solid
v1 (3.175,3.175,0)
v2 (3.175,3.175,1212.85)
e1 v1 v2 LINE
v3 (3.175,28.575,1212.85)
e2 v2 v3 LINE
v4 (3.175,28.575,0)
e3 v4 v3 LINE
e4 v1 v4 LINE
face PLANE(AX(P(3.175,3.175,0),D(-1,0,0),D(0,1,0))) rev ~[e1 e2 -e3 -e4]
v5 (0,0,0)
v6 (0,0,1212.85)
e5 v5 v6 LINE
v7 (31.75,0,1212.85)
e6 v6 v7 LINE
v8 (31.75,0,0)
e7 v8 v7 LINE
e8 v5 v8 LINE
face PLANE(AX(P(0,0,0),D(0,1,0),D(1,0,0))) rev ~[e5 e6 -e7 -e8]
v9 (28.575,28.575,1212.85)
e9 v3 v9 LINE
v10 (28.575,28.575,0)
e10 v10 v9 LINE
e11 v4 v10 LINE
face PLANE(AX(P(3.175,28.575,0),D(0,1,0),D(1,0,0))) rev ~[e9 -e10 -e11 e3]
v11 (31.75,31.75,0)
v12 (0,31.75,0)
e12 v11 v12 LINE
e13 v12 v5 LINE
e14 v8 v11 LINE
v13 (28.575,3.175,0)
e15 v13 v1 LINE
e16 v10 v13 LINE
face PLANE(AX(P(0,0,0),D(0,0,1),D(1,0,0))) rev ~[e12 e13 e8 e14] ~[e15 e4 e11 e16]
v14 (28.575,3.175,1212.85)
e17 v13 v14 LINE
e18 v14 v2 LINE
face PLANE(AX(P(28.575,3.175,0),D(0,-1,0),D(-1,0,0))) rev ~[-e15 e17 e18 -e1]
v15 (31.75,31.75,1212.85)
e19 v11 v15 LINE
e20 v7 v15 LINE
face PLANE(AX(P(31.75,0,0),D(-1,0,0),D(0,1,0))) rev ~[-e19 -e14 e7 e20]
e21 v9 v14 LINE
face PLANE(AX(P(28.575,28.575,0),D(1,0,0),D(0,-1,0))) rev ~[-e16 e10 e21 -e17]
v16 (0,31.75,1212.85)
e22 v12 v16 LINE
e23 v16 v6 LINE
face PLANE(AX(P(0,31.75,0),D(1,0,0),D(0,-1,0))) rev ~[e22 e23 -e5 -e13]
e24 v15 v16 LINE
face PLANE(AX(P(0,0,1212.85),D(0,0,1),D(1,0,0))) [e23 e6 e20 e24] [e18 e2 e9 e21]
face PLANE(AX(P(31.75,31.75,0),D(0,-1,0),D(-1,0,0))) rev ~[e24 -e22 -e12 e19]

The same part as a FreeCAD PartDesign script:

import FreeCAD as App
import Part
import Sketcher

V = App.Vector
Q = App.Units.Quantity

doc = App.newDocument("Part")
params = doc.addObject("Spreadsheet::Sheet", "Params")
for row, (alias, value) in enumerate([
    ("sketch1_width", "1.25 in"),
    ("sketch1_width2", "1 in"),
    ("pad1_length", "47.75 in"),
], start=1):
    params.set(f"A{row}", alias)
    params.set(f"B{row}", "=" + value)
    params.setAlias(f"B{row}", alias)

body = doc.addObject("PartDesign::Body", "Body")

# Sketch on XY plane
sketch1 = body.newObject("Sketcher::SketchObject", "Sketch")
sketch1.AttachmentSupport = (doc.getObject("XY_Plane"), [""])
sketch1.MapMode = "FlatFace"
sketch1.addGeometry([
    Part.LineSegment(V(0, 32, 0), V(0, 0, 0)),  # 0
    Part.LineSegment(V(0, 0, 0), V(32, 0, 0)),  # 1
    Part.LineSegment(V(32, 0, 0), V(32, 32, 0)),  # 2
    Part.LineSegment(V(32, 32, 0), V(0, 32, 0)),  # 3
    Part.LineSegment(V(3, 3, 0), V(3, 29, 0)),  # 4
    Part.LineSegment(V(3, 29, 0), V(29, 29, 0)),  # 5
    Part.LineSegment(V(29, 29, 0), V(29, 3, 0)),  # 6
    Part.LineSegment(V(29, 3, 0), V(3, 3, 0)),  # 7
], False)
sketch1.addConstraint([
    Sketcher.Constraint("Coincident", 0, 2, 1, 1),
    Sketcher.Constraint("Coincident", 1, 2, 2, 1),
    Sketcher.Constraint("Coincident", 2, 2, 3, 1),
    Sketcher.Constraint("Coincident", 3, 2, 0, 1),
    Sketcher.Constraint("Coincident", 4, 2, 5, 1),
    Sketcher.Constraint("Coincident", 5, 2, 6, 1),
    Sketcher.Constraint("Coincident", 6, 2, 7, 1),
    Sketcher.Constraint("Coincident", 7, 2, 4, 1),
    Sketcher.Constraint("Vertical", 0),
    Sketcher.Constraint("Horizontal", 1),
    Sketcher.Constraint("Vertical", 2),
    Sketcher.Constraint("Horizontal", 3),
    Sketcher.Constraint("Vertical", 4),
    Sketcher.Constraint("Horizontal", 5),
    Sketcher.Constraint("Vertical", 6),
    Sketcher.Constraint("Horizontal", 7),
    Sketcher.Constraint("Coincident", 0, 2, -1, 1),
    Sketcher.Constraint("Equal", 3, 0),
    Sketcher.Constraint("Equal", 7, 4),
    Sketcher.Constraint("DistanceX", 1, 1, 1, 2, Q("1.25 in")),
    Sketcher.Constraint("DistanceX", 5, 1, 5, 2, Q("1 in")),
    Sketcher.Constraint("DistanceX", -1, 1, 4, 2, Q("0.125 in")),
    Sketcher.Constraint("DistanceY", -1, 1, 6, 2, Q("0.125 in")),
])
sketch1.setExpression("Constraints[19]", "Params.sketch1_width")
sketch1.setExpression("Constraints[20]", "Params.sketch1_width2")
pad1 = body.newObject("PartDesign::Pad", "Pad")
pad1.Profile = sketch1
pad1.setExpression("Length", "Params.pad1_length")

doc.recompute()
